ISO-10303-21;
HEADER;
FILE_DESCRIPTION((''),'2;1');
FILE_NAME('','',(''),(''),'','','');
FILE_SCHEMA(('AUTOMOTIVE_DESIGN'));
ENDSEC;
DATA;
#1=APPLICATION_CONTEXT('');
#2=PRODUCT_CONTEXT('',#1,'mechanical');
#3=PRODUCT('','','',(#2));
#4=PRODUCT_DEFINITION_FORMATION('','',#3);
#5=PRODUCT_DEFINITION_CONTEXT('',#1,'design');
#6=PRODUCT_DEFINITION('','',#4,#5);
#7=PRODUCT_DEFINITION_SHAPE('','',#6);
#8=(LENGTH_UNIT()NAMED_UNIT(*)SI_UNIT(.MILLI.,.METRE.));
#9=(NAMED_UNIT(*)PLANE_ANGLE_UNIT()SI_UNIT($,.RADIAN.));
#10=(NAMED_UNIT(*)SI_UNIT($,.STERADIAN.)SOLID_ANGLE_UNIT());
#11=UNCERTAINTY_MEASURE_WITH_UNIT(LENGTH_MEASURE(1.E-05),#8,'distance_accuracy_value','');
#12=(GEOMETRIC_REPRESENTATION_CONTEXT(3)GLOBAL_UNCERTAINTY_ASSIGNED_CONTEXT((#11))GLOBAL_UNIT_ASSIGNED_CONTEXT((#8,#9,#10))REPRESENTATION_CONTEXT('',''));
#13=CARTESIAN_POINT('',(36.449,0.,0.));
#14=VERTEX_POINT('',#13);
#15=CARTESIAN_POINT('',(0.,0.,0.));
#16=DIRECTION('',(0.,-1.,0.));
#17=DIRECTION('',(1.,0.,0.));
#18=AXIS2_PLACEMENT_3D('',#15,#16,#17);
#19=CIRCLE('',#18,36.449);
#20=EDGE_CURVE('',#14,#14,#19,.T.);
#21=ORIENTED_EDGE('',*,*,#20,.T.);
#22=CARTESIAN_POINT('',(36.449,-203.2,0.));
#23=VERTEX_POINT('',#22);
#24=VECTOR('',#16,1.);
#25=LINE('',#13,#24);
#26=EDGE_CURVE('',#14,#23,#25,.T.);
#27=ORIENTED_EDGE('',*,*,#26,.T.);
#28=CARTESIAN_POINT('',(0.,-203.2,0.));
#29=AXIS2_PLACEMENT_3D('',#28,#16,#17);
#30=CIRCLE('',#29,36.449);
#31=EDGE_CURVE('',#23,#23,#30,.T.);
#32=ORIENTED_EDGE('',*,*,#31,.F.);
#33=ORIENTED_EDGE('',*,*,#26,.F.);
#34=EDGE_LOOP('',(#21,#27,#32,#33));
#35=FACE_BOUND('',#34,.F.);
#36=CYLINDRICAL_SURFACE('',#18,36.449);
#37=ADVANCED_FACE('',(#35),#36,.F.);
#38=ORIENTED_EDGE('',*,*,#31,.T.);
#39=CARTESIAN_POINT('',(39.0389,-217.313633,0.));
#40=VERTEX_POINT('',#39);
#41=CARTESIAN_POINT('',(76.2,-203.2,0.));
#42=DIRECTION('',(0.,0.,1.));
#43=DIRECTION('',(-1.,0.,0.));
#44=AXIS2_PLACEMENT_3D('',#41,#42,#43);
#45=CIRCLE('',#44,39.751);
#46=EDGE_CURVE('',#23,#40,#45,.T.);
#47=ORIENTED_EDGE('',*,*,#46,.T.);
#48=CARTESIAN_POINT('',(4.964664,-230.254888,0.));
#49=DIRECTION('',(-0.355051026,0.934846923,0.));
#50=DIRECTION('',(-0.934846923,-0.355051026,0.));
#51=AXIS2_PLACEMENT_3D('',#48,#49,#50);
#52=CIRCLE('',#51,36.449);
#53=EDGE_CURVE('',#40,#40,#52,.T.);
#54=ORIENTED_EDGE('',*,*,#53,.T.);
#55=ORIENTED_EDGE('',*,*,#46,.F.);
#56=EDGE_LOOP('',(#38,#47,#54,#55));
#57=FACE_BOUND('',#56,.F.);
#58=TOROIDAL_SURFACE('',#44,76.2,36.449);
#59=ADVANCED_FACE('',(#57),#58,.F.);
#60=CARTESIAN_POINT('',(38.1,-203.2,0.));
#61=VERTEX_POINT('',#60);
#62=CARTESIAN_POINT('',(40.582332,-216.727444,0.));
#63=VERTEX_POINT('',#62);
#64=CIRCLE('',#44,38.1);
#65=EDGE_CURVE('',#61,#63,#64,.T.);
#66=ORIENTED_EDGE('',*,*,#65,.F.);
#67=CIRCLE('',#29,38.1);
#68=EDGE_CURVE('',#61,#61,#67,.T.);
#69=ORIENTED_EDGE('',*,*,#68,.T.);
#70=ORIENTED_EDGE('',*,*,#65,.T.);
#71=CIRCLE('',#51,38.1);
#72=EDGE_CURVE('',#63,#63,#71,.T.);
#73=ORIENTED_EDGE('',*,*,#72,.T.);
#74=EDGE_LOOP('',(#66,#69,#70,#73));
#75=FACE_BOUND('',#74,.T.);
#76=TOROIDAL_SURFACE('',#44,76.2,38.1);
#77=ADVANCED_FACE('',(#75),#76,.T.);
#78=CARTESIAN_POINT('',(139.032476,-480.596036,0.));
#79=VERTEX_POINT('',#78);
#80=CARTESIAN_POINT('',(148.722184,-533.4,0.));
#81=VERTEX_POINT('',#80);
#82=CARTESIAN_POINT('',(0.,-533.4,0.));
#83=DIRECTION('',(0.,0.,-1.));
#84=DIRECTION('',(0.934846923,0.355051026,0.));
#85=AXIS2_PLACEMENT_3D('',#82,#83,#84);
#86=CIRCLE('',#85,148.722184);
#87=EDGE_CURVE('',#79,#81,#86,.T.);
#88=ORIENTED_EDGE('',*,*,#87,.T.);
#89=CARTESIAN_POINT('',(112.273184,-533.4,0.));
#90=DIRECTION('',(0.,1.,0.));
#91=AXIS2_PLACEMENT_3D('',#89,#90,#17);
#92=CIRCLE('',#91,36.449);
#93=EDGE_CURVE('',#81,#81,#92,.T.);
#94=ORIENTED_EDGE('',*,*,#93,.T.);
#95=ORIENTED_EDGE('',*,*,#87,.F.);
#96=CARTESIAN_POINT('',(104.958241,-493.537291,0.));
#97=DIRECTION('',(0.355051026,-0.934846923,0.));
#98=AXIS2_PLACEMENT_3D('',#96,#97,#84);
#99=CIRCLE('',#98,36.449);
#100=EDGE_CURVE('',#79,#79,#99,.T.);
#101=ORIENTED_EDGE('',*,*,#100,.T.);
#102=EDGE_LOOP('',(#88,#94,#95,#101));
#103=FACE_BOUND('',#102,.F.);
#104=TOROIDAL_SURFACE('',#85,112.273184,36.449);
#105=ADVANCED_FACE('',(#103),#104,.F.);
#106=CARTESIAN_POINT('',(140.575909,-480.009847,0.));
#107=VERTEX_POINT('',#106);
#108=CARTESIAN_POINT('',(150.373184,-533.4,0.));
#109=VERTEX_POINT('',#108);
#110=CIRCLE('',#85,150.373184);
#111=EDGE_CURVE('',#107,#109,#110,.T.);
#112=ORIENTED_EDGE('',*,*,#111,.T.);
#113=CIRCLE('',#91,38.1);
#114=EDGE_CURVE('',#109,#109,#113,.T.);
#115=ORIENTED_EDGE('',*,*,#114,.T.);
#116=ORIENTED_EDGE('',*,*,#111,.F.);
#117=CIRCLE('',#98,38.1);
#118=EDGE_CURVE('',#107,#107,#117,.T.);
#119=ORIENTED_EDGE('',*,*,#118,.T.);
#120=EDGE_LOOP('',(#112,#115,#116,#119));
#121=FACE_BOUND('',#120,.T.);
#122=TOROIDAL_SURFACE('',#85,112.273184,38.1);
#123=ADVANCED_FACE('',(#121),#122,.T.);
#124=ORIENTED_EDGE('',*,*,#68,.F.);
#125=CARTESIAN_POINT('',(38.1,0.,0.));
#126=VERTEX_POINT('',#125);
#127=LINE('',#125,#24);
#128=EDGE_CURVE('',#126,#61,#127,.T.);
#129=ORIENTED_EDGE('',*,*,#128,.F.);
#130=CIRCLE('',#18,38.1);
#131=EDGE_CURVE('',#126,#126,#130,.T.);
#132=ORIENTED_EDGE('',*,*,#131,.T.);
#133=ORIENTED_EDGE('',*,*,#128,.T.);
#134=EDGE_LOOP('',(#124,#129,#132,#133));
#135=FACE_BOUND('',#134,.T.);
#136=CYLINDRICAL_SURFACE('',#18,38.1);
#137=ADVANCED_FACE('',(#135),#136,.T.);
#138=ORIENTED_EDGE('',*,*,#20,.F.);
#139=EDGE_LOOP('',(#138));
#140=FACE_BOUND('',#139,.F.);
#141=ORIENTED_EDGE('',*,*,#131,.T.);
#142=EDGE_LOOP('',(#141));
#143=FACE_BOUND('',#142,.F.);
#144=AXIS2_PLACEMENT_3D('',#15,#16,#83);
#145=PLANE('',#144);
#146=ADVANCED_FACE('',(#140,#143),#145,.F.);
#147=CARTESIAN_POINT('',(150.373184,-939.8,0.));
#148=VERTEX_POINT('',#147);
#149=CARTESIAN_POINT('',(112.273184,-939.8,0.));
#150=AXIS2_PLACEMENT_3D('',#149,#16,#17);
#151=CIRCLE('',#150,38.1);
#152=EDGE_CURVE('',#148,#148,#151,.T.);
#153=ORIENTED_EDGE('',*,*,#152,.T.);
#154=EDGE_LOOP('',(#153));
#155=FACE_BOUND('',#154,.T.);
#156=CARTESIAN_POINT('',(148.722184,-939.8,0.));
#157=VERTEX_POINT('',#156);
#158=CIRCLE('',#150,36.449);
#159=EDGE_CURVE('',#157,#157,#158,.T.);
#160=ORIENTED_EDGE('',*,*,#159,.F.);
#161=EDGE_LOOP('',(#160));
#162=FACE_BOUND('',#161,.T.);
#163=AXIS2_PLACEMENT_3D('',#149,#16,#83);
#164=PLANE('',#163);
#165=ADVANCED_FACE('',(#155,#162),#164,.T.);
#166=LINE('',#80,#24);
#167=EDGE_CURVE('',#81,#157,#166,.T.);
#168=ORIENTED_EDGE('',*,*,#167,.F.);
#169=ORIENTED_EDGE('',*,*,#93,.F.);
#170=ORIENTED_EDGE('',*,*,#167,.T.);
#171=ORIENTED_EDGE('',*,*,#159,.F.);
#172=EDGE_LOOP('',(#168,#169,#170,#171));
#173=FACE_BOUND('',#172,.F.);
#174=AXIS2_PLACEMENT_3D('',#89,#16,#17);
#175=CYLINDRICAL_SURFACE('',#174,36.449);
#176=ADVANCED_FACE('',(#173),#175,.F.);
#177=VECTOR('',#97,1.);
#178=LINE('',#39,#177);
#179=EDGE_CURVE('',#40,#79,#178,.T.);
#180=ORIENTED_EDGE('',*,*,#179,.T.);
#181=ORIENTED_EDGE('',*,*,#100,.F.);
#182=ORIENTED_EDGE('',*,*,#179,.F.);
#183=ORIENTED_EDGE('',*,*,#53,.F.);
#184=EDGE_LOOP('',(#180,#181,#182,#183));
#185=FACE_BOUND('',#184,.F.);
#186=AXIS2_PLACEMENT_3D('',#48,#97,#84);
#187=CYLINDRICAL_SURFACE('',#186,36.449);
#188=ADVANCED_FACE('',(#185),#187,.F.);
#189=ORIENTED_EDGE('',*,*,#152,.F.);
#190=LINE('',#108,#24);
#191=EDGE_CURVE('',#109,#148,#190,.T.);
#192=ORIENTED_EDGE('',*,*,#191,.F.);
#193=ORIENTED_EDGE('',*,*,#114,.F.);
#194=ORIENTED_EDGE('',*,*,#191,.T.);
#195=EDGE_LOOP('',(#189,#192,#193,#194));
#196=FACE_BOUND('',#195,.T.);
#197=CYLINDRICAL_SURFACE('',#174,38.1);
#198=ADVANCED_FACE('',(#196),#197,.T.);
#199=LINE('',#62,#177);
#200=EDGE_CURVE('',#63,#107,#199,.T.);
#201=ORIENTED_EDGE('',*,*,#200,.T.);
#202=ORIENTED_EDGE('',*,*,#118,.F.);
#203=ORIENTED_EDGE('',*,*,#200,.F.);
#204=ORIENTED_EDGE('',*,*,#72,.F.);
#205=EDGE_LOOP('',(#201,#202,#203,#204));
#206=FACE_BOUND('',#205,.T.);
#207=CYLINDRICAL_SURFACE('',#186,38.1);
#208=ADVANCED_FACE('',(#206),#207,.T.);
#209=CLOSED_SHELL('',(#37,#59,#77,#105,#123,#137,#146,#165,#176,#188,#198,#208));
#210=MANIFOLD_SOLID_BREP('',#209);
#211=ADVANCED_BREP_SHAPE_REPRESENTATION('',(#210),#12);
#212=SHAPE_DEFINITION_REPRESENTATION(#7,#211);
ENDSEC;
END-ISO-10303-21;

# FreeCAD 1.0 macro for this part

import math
import FreeCAD as App
import Part
import Sketcher
from FreeCAD import Vector
Q = App.Units.Quantity

doc = App.newDocument("Part")
params = doc.addObject("Spreadsheet::Sheet", "Params")
for row, (alias, value) in enumerate([
    ("sketch1_diameter", "3 in"),
    ("sketch1_diameter2", "2.87 in"),
    ("sketch2_radius", "3 in"),
    ("sketch2_height", "8 in"),
    ("sketch2_height2", "16 in"),
], start=1):
    params.set(f"A{row}", alias)
    params.set(f"B{row}", "=" + value)
    params.setAlias(f"B{row}", alias)

body = doc.addObject("PartDesign::Body", "Body")

sketch1 = body.newObject("Sketcher::SketchObject", "Sketch")
sketch1.AttachmentSupport = (doc.getObject("XZ_Plane"), [""])
sketch1.MapMode = "FlatFace"
sketch1.addGeometry(Part.Circle(Vector(0, 0, 0), Vector(0, 0, 1), 38.1), False)
sketch1.addGeometry(Part.Circle(Vector(0, 0, 0), Vector(0, 0, 1), 36.449), False)
sketch1.addConstraint(Sketcher.Constraint("Coincident", 0, 3, -1, 1))
sketch1.addConstraint(Sketcher.Constraint("Coincident", 1, 3, -1, 1))
sketch1.addConstraint(Sketcher.Constraint("Diameter", 0, Q("3 in")))
sketch1.addConstraint(Sketcher.Constraint("Diameter", 1, Q("2.87 in")))
sketch1.setExpression("Constraints[2]", "Params.sketch1_diameter")
sketch1.setExpression("Constraints[3]", "Params.sketch1_diameter2")

sketch2 = body.newObject("Sketcher::SketchObject", "Sketch001")
sketch2.AttachmentSupport = (doc.getObject("XY_Plane"), [""])
sketch2.MapMode = "FlatFace"
sketch2.addGeometry(Part.LineSegment(Vector(0, 0, 0), Vector(0, -203.2, 0)), False)
sketch2.addGeometry(Part.ArcOfCircle(Part.Circle(Vector(76.2, -203.2, 0), Vector(0, 0, 1), 76.2), math.radians(180), math.radians(200.796572)), False)
sketch2.addGeometry(Part.LineSegment(Vector(4.964664, -230.254888, 0), Vector(104.958241, -493.537291, 0)), False)
sketch2.addGeometry(Part.ArcOfCircle(Part.Circle(Vector(0, -533.4, 0), Vector(0, 0, 1), 112.273184), math.radians(0), math.radians(20.796572)), False)
sketch2.addGeometry(Part.LineSegment(Vector(112.273184, -533.4, 0), Vector(112.273184, -939.8, 0)), False)
sketch2.addConstraint(Sketcher.Constraint("Tangent", 0, 2, 1, 1))
sketch2.addConstraint(Sketcher.Constraint("Tangent", 1, 2, 2, 1))
sketch2.addConstraint(Sketcher.Constraint("Tangent", 2, 2, 3, 2))
sketch2.addConstraint(Sketcher.Constraint("Tangent", 3, 1, 4, 1))
sketch2.addConstraint(Sketcher.Constraint("Vertical", 0))
sketch2.addConstraint(Sketcher.Constraint("Vertical", 4))
sketch2.addConstraint(Sketcher.Constraint("Coincident", 0, 1, -1, 1))
sketch2.addConstraint(Sketcher.Constraint("PointOnObject", 3, 3, -2))
sketch2.addConstraint(Sketcher.Constraint("Radius", 1, Q("3 in")))
sketch2.addConstraint(Sketcher.Constraint("DistanceY", 0, 2, 0, 1, Q("8 in")))
sketch2.addConstraint(Sketcher.Constraint("DistanceY", 4, 2, 4, 1, Q("16 in")))
sketch2.addConstraint(Sketcher.Constraint("DistanceY", 3, 3, -1, 1, Q("21 in")))
sketch2.addConstraint(Sketcher.Constraint("Radius", 3, 112.273184))
sketch2.setExpression("Constraints[8]", "Params.sketch2_radius")
sketch2.setExpression("Constraints[9]", "Params.sketch2_height")
sketch2.setExpression("Constraints[10]", "Params.sketch2_height2")
doc.recompute()

additivepipe = body.newObject("PartDesign::AdditivePipe", "AdditivePipe")
additivepipe.Profile = sketch1
additivepipe.Spine = (sketch2, ["Edge1", "Edge2", "Edge3", "Edge4", "Edge5"])

doc.recompute()
